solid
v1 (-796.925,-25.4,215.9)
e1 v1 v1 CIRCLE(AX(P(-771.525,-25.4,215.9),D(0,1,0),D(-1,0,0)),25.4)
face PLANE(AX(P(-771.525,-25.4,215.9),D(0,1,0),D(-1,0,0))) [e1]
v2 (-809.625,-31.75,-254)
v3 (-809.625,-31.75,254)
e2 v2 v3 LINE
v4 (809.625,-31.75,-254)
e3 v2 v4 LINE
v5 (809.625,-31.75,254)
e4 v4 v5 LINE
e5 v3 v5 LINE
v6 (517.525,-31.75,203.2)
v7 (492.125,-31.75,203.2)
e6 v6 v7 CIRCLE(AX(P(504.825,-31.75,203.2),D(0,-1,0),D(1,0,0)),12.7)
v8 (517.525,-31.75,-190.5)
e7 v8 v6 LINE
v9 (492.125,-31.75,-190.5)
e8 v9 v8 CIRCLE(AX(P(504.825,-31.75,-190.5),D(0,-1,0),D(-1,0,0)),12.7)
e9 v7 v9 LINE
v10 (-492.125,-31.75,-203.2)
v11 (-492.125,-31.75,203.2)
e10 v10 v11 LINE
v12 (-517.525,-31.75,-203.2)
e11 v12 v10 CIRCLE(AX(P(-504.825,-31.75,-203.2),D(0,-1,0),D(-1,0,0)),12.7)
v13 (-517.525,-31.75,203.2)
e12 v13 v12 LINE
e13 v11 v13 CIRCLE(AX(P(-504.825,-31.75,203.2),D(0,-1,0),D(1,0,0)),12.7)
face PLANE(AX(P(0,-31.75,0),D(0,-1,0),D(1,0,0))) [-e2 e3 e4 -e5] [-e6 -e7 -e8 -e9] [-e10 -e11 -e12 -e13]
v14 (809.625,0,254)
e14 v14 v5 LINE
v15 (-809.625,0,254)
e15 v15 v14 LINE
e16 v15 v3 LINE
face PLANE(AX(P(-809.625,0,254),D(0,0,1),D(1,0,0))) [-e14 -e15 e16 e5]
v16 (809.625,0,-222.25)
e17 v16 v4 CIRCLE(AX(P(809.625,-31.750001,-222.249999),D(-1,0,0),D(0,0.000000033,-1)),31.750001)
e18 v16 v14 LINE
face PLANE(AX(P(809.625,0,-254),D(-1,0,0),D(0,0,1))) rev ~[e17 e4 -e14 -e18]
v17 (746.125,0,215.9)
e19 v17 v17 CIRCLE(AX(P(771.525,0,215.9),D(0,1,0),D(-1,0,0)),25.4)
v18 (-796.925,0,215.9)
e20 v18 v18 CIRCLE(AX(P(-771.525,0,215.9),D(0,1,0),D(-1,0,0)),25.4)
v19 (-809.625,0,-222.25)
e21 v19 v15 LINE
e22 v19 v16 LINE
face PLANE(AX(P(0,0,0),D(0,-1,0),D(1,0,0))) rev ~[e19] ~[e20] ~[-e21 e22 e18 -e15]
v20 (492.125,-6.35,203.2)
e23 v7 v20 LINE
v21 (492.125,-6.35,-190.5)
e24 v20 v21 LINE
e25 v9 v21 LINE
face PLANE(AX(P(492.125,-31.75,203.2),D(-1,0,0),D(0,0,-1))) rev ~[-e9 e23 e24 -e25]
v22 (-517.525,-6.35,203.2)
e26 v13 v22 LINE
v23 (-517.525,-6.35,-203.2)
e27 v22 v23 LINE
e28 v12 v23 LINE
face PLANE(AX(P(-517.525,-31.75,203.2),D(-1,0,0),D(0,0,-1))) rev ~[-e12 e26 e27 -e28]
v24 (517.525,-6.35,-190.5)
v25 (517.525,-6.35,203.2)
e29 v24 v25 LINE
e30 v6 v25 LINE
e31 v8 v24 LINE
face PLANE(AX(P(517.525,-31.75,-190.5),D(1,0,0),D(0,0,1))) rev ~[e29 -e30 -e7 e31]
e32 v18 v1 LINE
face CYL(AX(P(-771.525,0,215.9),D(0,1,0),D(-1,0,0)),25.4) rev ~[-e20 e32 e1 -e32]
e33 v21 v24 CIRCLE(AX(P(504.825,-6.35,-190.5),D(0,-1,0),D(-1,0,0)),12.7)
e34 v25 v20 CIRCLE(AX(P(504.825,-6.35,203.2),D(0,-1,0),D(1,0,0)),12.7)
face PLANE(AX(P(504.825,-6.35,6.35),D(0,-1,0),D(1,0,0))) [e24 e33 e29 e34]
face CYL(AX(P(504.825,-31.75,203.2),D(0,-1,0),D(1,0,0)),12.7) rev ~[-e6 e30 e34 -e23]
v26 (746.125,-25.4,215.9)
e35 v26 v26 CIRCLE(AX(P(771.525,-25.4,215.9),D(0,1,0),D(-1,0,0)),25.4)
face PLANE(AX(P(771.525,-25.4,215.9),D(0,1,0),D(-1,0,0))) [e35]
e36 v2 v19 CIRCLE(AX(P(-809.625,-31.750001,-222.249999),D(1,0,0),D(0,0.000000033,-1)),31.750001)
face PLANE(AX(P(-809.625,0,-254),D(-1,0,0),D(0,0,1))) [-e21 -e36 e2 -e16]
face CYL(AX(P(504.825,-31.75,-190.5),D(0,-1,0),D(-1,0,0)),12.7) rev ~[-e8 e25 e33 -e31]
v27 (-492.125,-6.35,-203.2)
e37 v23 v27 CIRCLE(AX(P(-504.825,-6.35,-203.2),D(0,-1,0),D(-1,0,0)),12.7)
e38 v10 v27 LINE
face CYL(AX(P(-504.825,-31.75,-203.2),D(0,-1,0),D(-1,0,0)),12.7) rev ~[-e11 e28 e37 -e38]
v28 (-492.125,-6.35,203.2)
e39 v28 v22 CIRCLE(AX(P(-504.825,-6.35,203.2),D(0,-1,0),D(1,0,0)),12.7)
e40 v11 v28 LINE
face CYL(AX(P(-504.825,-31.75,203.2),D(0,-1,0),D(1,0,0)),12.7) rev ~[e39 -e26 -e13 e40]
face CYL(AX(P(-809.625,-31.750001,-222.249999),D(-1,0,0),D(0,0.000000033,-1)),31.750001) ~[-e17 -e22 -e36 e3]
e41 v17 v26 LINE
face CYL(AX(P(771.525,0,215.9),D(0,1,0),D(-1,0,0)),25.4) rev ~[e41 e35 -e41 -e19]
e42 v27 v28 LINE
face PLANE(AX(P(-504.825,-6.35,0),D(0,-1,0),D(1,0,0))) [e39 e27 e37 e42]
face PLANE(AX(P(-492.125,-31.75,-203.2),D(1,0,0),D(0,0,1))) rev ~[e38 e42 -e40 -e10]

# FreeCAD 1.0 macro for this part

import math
import FreeCAD as App
import Part
import Sketcher
from FreeCAD import Vector
Q = App.Units.Quantity


def add_polygon(sketch, points):
    """Adds a closed chain of lines whose ends are joined by coincident constraints."""
    first, n = sketch.GeometryCount, len(points)
    for a, b in zip(points, points[1:] + points[:1]):
        sketch.addGeometry(Part.LineSegment(App.Vector(*a, 0), App.Vector(*b, 0)), False)
    for i in range(n):
        sketch.addConstraint(Sketcher.Constraint("Coincident", first + i, 2, first + (i + 1) % n, 1))

doc = App.newDocument("Part")
params = doc.addObject("Spreadsheet::Sheet", "Params")
for row, (alias, value) in enumerate([
    ("sketch1_height", "20 in"),
    ("sketch1_width", "63.75 in"),
    ("pad1_length", "1.25 in"),
    ("sketch2_radius", "1.25 in"),
    ("sketch3_radius", "0.5 in"),
    ("sketch3_height", "16 in"),
    ("sketch3_height2", "15.5 in"),
    ("pocket2_length", "1 in"),
    ("sketch4_diameter", "2 in"),
    ("pocket3_length", "1 in"),
], start=1):
    params.set(f"A{row}", alias)
    params.set(f"B{row}", "=" + value)
    params.setAlias(f"B{row}", alias)

body = doc.addObject("PartDesign::Body", "Body")

sketch1 = doc.addObject("Sketcher::SketchObject", "Sketch")
body.addObject(sketch1)
sketch1.AttachmentSupport = (doc.XZ_Plane, [""])
sketch1.MapMode = "FlatFace"
add_polygon(sketch1, [(-810, 254), (-810, -254), (810, -254), (810, 254)])
sketch1.addConstraint([
    Sketcher.Constraint("Vertical", 0),
    Sketcher.Constraint("Horizontal", 1),
    Sketcher.Constraint("Vertical", 2),
    Sketcher.Constraint("Horizontal", 3),
    Sketcher.Constraint("Symmetric", 0, 2, 2, 2, -1, 1),
    Sketcher.Constraint("DistanceY", 0, 2, 0, 1, Q("20 in")),
    Sketcher.Constraint("DistanceX", 1, 1, 1, 2, Q("63.75 in")),
])
sketch1.setExpression("Constraints[9]", "Params.sketch1_height")
sketch1.setExpression("Constraints[10]", "Params.sketch1_width")
pad1 = doc.addObject("PartDesign::Pad", "Pad")
body.addObject(pad1)
pad1.Profile = sketch1
pad1.setExpression("Length", "Params.pad1_length")

sketch2 = doc.addObject("Sketcher::SketchObject", "Sketch001")
body.addObject(sketch2)
sketch2.AttachmentSupport = (doc.YZ_Plane, [""])
sketch2.MapMode = "FlatFace"
sketch2.AttachmentOffset = App.Placement(Vector(0, 0, -31.875 * 25.4), App.Rotation())
sketch2.addGeometry([
    Part.LineSegment(Vector(0, -222, 0), Vector(0, -254, 0)),
    Part.LineSegment(Vector(0, -254, 0), Vector(-32, -254, 0)),
    Part.ArcOfCircle(Part.Circle(Vector(-32, -222, 0), Vector(0, 0, 1), 32), math.radians(-90), math.radians(0)),
], False)
sketch2.addConstraint([
    Sketcher.Constraint("Coincident", 0, 2, 1, 1),
    Sketcher.Constraint("Tangent", 1, 2, 2, 1),
    Sketcher.Constraint("Tangent", 2, 2, 0, 1),
    Sketcher.Constraint("Vertical", 0),
    Sketcher.Constraint("Horizontal", 1),
    Sketcher.Constraint("PointOnObject", 0, 2, -2),
    Sketcher.Constraint("Radius", 2, Q("1.25 in")),
    Sketcher.Constraint("DistanceY", 0, 2, -1, 1, Q("10 in")),
])
sketch2.setExpression("Constraints[6]", "Params.sketch2_radius")
pocket1 = doc.addObject("PartDesign::Pocket", "Pocket")
body.addObject(pocket1)
pocket1.Profile = sketch2
pocket1.Type = "ThroughAll"
pocket1.Reversed = True

sketch3 = doc.addObject("Sketcher::SketchObject", "Sketch002")
body.addObject(sketch3)
sketch3.AttachmentSupport = (doc.XZ_Plane, [""])
sketch3.MapMode = "FlatFace"
sketch3.AttachmentOffset = App.Placement(Vector(0, 0, 1.25 * 25.4), App.Rotation())
sketch3.addGeometry([
    Part.LineSegment(Vector(-492, -203, 0), Vector(-492, 203, 0)),
    Part.ArcOfCircle(Part.Circle(Vector(-505, 203, 0), Vector(0, 0, 1), 13), math.radians(0), math.radians(180)),
    Part.LineSegment(Vector(-518, 203, 0), Vector(-518, -203, 0)),
    Part.ArcOfCircle(Part.Circle(Vector(-505, -203, 0), Vector(0, 0, 1), 13), math.radians(180), math.radians(360)),
    Part.LineSegment(Vector(518, -190, 0), Vector(518, 203, 0)),
    Part.ArcOfCircle(Part.Circle(Vector(505, 203, 0), Vector(0, 0, 1), 13), math.radians(0), math.radians(180)),
    Part.LineSegment(Vector(492, 203, 0), Vector(492, -190, 0)),
    Part.ArcOfCircle(Part.Circle(Vector(505, -190, 0), Vector(0, 0, 1), 13), math.radians(180), math.radians(360)),
], False)
sketch3.addConstraint([
    Sketcher.Constraint("Tangent", 0, 2, 1, 1),
    Sketcher.Constraint("Tangent", 1, 2, 2, 1),
    Sketcher.Constraint("Tangent", 2, 2, 3, 1),
    Sketcher.Constraint("Tangent", 3, 2, 0, 1),
    Sketcher.Constraint("Tangent", 4, 2, 5, 1),
    Sketcher.Constraint("Tangent", 5, 2, 6, 1),
    Sketcher.Constraint("Tangent", 6, 2, 7, 1),
    Sketcher.Constraint("Tangent", 7, 2, 4, 1),
    Sketcher.Constraint("Vertical", 0),
    Sketcher.Constraint("Vertical", 2),
    Sketcher.Constraint("Vertical", 4),
    Sketcher.Constraint("Vertical", 6),
    Sketcher.Constraint("Equal", 3, 5),
    Sketcher.Constraint("Symmetric", 3, 3, 5, 3, -1, 1),
    Sketcher.Constraint("Horizontal", 1, 3, 5, 3),
    Sketcher.Constraint("Radius", 1, Q("0.5 in")),
    Sketcher.Constraint("DistanceY", 0, 1, 0, 2, Q("16 in")),
    Sketcher.Constraint("DistanceY", 4, 1, 4, 2, Q("15.5 in")),
    Sketcher.Constraint("DistanceX", 1, 3, 5, 3, Q("39.75 in")),
])
sketch3.setExpression("Constraints[15]", "Params.sketch3_radius")
sketch3.setExpression("Constraints[16]", "Params.sketch3_height")
sketch3.setExpression("Constraints[17]", "Params.sketch3_height2")
pocket2 = doc.addObject("PartDesign::Pocket", "Pocket001")
body.addObject(pocket2)
pocket2.Profile = sketch3
pocket2.setExpression("Length", "Params.pocket2_length")

sketch4 = doc.addObject("Sketcher::SketchObject", "Sketch003")
body.addObject(sketch4)
sketch4.AttachmentSupport = (doc.XZ_Plane, [""])
sketch4.MapMode = "FlatFace"
sketch4.addGeometry([
    Part.Circle(Vector(772, 216, 0), Vector(0, 0, 1), 25),
    Part.Circle(Vector(-772, 216, 0), Vector(0, 0, 1), 25),
], False)
sketch4.addConstraint([
    Sketcher.Constraint("Equal", 0, 1),
    Sketcher.Constraint("Symmetric", 0, 3, 1, 3, -2),
    Sketcher.Constraint("Diameter", 0, Q("2 in")),
    Sketcher.Constraint("DistanceY", -1, 1, 0, 3, Q("8.5 in")),
    Sketcher.Constraint("DistanceX", 1, 3, 0, 3, Q("60.75 in")),
])
sketch4.setExpression("Constraints[2]", "Params.sketch4_diameter")
pocket3 = doc.addObject("PartDesign::Pocket", "Pocket002")
body.addObject(pocket3)
pocket3.Profile = sketch4
pocket3.setExpression("Length", "Params.pocket3_length")
pocket3.Reversed = True

doc.recompute()
